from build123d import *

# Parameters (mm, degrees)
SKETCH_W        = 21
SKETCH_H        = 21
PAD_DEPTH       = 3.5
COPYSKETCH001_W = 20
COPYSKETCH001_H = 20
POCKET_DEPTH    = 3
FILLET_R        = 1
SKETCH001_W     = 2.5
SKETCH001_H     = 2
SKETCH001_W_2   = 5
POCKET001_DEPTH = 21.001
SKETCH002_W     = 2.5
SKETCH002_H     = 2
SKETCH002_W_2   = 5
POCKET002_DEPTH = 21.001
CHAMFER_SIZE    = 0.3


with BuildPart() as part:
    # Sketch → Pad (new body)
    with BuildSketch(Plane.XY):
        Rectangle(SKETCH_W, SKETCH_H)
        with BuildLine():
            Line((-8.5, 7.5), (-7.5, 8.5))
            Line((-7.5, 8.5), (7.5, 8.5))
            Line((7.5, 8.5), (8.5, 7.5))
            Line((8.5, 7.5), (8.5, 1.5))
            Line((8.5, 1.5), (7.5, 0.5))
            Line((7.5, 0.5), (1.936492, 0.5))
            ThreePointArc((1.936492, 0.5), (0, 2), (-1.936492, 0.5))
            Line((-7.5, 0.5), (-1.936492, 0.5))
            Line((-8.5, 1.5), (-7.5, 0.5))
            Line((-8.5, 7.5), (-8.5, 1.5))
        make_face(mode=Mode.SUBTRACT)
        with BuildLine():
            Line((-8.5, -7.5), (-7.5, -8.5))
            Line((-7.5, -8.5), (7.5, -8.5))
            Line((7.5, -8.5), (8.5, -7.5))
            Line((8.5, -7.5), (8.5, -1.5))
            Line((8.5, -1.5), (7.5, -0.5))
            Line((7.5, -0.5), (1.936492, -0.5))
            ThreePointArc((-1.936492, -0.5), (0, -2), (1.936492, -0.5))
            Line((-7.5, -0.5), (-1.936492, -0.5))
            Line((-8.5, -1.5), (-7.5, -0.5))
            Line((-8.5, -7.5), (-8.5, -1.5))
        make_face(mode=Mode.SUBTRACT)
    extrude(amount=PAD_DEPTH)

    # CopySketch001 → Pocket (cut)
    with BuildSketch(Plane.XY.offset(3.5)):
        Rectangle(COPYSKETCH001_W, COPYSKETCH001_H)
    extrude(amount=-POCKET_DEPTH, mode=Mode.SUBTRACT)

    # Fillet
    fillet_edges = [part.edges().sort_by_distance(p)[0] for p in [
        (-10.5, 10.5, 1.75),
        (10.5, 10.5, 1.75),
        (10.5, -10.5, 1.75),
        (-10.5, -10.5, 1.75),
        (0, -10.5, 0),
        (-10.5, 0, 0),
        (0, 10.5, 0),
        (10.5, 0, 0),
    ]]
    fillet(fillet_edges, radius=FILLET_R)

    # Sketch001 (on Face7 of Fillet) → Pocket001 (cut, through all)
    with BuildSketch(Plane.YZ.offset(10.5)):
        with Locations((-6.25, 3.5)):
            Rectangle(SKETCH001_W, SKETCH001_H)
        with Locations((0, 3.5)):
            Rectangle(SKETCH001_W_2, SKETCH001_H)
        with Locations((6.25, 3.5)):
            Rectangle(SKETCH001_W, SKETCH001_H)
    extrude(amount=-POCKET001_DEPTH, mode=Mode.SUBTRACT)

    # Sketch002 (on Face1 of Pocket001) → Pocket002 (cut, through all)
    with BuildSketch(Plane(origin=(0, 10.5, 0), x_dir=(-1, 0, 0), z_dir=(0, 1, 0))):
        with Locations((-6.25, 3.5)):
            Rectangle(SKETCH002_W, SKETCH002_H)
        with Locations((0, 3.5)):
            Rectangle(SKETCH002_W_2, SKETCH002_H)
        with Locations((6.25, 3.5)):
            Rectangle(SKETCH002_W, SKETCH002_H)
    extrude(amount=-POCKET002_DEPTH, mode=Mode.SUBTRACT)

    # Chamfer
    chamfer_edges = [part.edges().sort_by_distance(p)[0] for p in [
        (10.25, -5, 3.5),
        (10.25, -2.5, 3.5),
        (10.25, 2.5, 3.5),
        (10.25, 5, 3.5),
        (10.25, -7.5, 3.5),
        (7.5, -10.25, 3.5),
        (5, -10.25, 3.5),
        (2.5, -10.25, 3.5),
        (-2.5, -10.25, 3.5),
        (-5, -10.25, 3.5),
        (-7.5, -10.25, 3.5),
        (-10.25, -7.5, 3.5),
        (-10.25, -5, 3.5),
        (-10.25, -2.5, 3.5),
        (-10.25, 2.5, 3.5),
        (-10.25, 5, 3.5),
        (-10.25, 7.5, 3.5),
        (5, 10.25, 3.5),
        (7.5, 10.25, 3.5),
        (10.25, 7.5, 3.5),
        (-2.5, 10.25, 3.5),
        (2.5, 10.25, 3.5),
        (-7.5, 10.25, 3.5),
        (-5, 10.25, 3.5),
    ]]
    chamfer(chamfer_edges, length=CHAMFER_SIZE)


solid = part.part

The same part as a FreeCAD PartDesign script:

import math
import FreeCAD as App
import Part
import Sketcher


def edges_at(feature, points):
    """Names of the edges that pass closest to the given points."""
    edges = feature.Shape.Edges
    near = lambda p: min(range(len(edges)), key=lambda i: edges[i].distToShape(Part.Vertex(*p))[0])
    return sorted({f"Edge{near(p) + 1}" for p in points})

doc = App.newDocument("Part")
params = doc.addObject("Spreadsheet::Sheet", "Params")
for row, (alias, value) in enumerate([
    ("sketch1_radius", "2 mm"),
    ("sketch1_width", "21 mm"),
    ("sketch1_width2", "15 mm"),
    ("sketch1_height", "6 mm"),
    ("pad1_length", "3.5 mm"),
    ("sketch2_width", "20 mm"),
    ("pocket1_length", "3 mm"),
    ("fillet_radius", "1 mm"),
    ("sketch3_width", "5 mm"),
    ("sketch3_height", "2 mm"),
    ("sketch3_width2", "2.5 mm"),
    ("sketch4_width", "5 mm"),
    ("sketch4_height", "2 mm"),
    ("sketch4_width2", "2.5 mm"),
    ("chamfer_size", "0.3 mm"),
], start=1):
    params.set(f"A{row}", alias)
    params.set(f"B{row}", "=" + value)
    params.setAlias(f"B{row}", alias)

body = doc.addObject("PartDesign::Body", "Body")

sketch1 = doc.addObject("Sketcher::SketchObject", "Sketch")
body.addObject(sketch1)
sketch1.AttachmentSupport = (doc.XY_Plane, [""])
sketch1.MapMode = "FlatFace"
sketch1.addGeometry([
    Part.LineSegment(App.Vector(-10.5, 10.5, 0), App.Vector(-10.5, -10.5, 0)),
    Part.LineSegment(App.Vector(-10.5, -10.5, 0), App.Vector(10.5, -10.5, 0)),
    Part.LineSegment(App.Vector(10.5, -10.5, 0), App.Vector(10.5, 10.5, 0)),
    Part.LineSegment(App.Vector(10.5, 10.5, 0), App.Vector(-10.5, 10.5, 0)),
    Part.LineSegment(App.Vector(-7.5, -8.5, 0), App.Vector(-8.5, -7.5, 0)),
    Part.LineSegment(App.Vector(-8.5, -7.5, 0), App.Vector(-8.5, -1.5, 0)),
    Part.LineSegment(App.Vector(-8.5, -1.5, 0), App.Vector(-7.5, -0.5, 0)),
    Part.LineSegment(App.Vector(-7.5, -0.5, 0), App.Vector(-1.9, -0.5, 0)),
    Part.ArcOfCircle(Part.Circle(App.Vector(0, 0, 0), App.Vector(0, 0, 1), 2), math.radians(-166), math.radians(-14)),
    Part.LineSegment(App.Vector(1.9, -0.5, 0), App.Vector(7.5, -0.5, 0)),
    Part.LineSegment(App.Vector(7.5, -0.5, 0), App.Vector(8.5, -1.5, 0)),
    Part.LineSegment(App.Vector(8.5, -1.5, 0), App.Vector(8.5, -7.5, 0)),
    Part.LineSegment(App.Vector(8.5, -7.5, 0), App.Vector(7.5, -8.5, 0)),
    Part.LineSegment(App.Vector(7.5, -8.5, 0), App.Vector(-7.5, -8.5, 0)),
    Part.LineSegment(App.Vector(-8.5, 1.5, 0), App.Vector(-8.5, 7.5, 0)),
    Part.LineSegment(App.Vector(-8.5, 7.5, 0), App.Vector(-7.5, 8.5, 0)),
    Part.LineSegment(App.Vector(-7.5, 8.5, 0), App.Vector(7.5, 8.5, 0)),
    Part.LineSegment(App.Vector(7.5, 8.5, 0), App.Vector(8.5, 7.5, 0)),
    Part.LineSegment(App.Vector(8.5, 7.5, 0), App.Vector(8.5, 1.5, 0)),
    Part.LineSegment(App.Vector(8.5, 1.5, 0), App.Vector(7.5, 0.5, 0)),
    Part.LineSegment(App.Vector(7.5, 0.5, 0), App.Vector(1.9, 0.5, 0)),
    Part.ArcOfCircle(Part.Circle(App.Vector(0, 0, 0), App.Vector(0, 0, 1), 2), math.radians(14), math.radians(166)),
    Part.LineSegment(App.Vector(-1.9, 0.5, 0), App.Vector(-7.5, 0.5, 0)),
    Part.LineSegment(App.Vector(-7.5, 0.5, 0), App.Vector(-8.5, 1.5, 0)),
], False)
sketch1.addConstraint([
    Sketcher.Constraint("Coincident", 0, 2, 1, 1),
    Sketcher.Constraint("Coincident", 1, 2, 2, 1),
    Sketcher.Constraint("Coincident", 2, 2, 3, 1),
    Sketcher.Constraint("Coincident", 3, 2, 0, 1),
    Sketcher.Constraint("Coincident", 4, 2, 5, 1),
    Sketcher.Constraint("Coincident", 5, 2, 6, 1),
    Sketcher.Constraint("Coincident", 6, 2, 7, 1),
    Sketcher.Constraint("Coincident", 7, 2, 8, 1),
    Sketcher.Constraint("Coincident", 8, 2, 9, 1),
    Sketcher.Constraint("Coincident", 9, 2, 10, 1),
    Sketcher.Constraint("Coincident", 10, 2, 11, 1),
    Sketcher.Constraint("Coincident", 11, 2, 12, 1),
    Sketcher.Constraint("Coincident", 12, 2, 13, 1),
    Sketcher.Constraint("Coincident", 13, 2, 4, 1),
    Sketcher.Constraint("Coincident", 14, 2, 15, 1),
    Sketcher.Constraint("Coincident", 15, 2, 16, 1),
    Sketcher.Constraint("Coincident", 16, 2, 17, 1),
    Sketcher.Constraint("Coincident", 17, 2, 18, 1),
    Sketcher.Constraint("Coincident", 18, 2, 19, 1),
    Sketcher.Constraint("Coincident", 19, 2, 20, 1),
    Sketcher.Constraint("Coincident", 20, 2, 21, 1),
    Sketcher.Constraint("Coincident", 21, 2, 22, 1),
    Sketcher.Constraint("Coincident", 22, 2, 23, 1),
    Sketcher.Constraint("Coincident", 23, 2, 14, 1),
    Sketcher.Constraint("Vertical", 0),
    Sketcher.Constraint("Horizontal", 1),
    Sketcher.Constraint("Vertical", 2),
    Sketcher.Constraint("Horizontal", 3),
    Sketcher.Constraint("Vertical", 5),
    Sketcher.Constraint("Horizontal", 7),
    Sketcher.Constraint("Horizontal", 9),
    Sketcher.Constraint("Vertical", 11),
    Sketcher.Constraint("Horizontal", 13),
    Sketcher.Constraint("Vertical", 14),
    Sketcher.Constraint("Horizontal", 16),
    Sketcher.Constraint("Vertical", 18),
    Sketcher.Constraint("Horizontal", 20),
    Sketcher.Constraint("Horizontal", 22),
    Sketcher.Constraint("Coincident", 8, 3, -1, 1),
    Sketcher.Constraint("Coincident", 21, 3, -1, 1),
    Sketcher.Constraint("Equal", 8, 21),
    Sketcher.Constraint("Symmetric", 0, 2, 2, 2, -1, 1),
    Sketcher.Constraint("Symmetric", 11, 2, 14, 2, -1, 1),
    Sketcher.Constraint("Symmetric", 12, 2, 15, 2, -1, 1),
    Sketcher.Constraint("Symmetric", 4, 2, 17, 2, -1, 1),
    Sketcher.Constraint("Symmetric", 6, 2, 19, 2, -1, 1),
    Sketcher.Constraint("Symmetric", 9, 2, 22, 2, -1, 1),
    Sketcher.Constraint("Symmetric", 6, 2, 9, 2, -2),
    Sketcher.Constraint("Symmetric", 5, 2, 10, 2, -2),
    Sketcher.Constraint("Perpendicular", 4, 6),
    Sketcher.Constraint("Perpendicular", 6, 10),
    Sketcher.Constraint("Perpendicular", 10, 12),
    Sketcher.Constraint("Perpendicular", 15, 17),
    Sketcher.Constraint("Perpendicular", 17, 19),
    Sketcher.Constraint("Perpendicular", 19, 23),
    Sketcher.Constraint("Horizontal", 4, 2, 11, 2),
    Sketcher.Constraint("Vertical", 9, 2, 12, 2),
    Sketcher.Constraint("Equal", 3, 0),
    Sketcher.Constraint("Radius", 8, 2.0),
    Sketcher.Constraint("DistanceX", 1, 1, 1, 2, 21.0),
    Sketcher.Constraint("DistanceX", 13, 2, 13, 1, 15.0),
    Sketcher.Constraint("DistanceY", 5, 1, 5, 2, 6.0),
    Sketcher.Constraint("DistanceX", 0, 2, 4, 2, 2.0),
    Sketcher.Constraint("DistanceY", 0, 2, 4, 2, 3.0),
])
sketch1.setExpression("Constraints[58]", "Params.sketch1_radius")
sketch1.setExpression("Constraints[59]", "Params.sketch1_width")
sketch1.setExpression("Constraints[60]", "Params.sketch1_width2")
sketch1.setExpression("Constraints[61]", "Params.sketch1_height")
pad1 = doc.addObject("PartDesign::Pad", "Pad")
body.addObject(pad1)
pad1.Profile = sketch1
pad1.setExpression("Length", "Params.pad1_length")

sketch2 = doc.addObject("Sketcher::SketchObject", "Sketch001")
body.addObject(sketch2)
sketch2.AttachmentSupport = (doc.XY_Plane, [""])
sketch2.MapMode = "FlatFace"
sketch2.AttachmentOffset = App.Placement(App.Vector(0, 0, 3.5), App.Rotation())
sketch2.addGeometry([
    Part.LineSegment(App.Vector(-10, 10, 0), App.Vector(-10, -10, 0)),
    Part.LineSegment(App.Vector(-10, -10, 0), App.Vector(10, -10, 0)),
    Part.LineSegment(App.Vector(10, -10, 0), App.Vector(10, 10, 0)),
    Part.LineSegment(App.Vector(10, 10, 0), App.Vector(-10, 10, 0)),
], False)
sketch2.addConstraint([
    Sketcher.Constraint("Coincident", 0, 2, 1, 1),
    Sketcher.Constraint("Coincident", 1, 2, 2, 1),
    Sketcher.Constraint("Coincident", 2, 2, 3, 1),
    Sketcher.Constraint("Coincident", 3, 2, 0, 1),
    Sketcher.Constraint("Vertical", 0),
    Sketcher.Constraint("Horizontal", 1),
    Sketcher.Constraint("Vertical", 2),
    Sketcher.Constraint("Horizontal", 3),
    Sketcher.Constraint("Symmetric", 0, 2, 2, 2, -1, 1),
    Sketcher.Constraint("Equal", 3, 0),
    Sketcher.Constraint("DistanceX", 1, 1, 1, 2, 20.0),
])
sketch2.setExpression("Constraints[10]", "Params.sketch2_width")
pocket1 = doc.addObject("PartDesign::Pocket", "Pocket")
body.addObject(pocket1)
pocket1.Profile = sketch2
pocket1.setExpression("Length", "Params.pocket1_length")
doc.recompute()

fillet = doc.addObject("PartDesign::Fillet", "Fillet")
body.addObject(fillet)
fillet.Base = (pocket1, edges_at(pocket1, [
    (-10.5, 10.5, 1.75),
    (10.5, 10.5, 1.75),
    (10.5, -10.5, 1.75),
    (-10.5, -10.5, 1.75),
    (0, -10.5, 0),
    (-10.5, 0, 0),
    (0, 10.5, 0),
    (10.5, 0, 0),
]))
fillet.setExpression("Radius", "Params.fillet_radius")

sketch3 = doc.addObject("Sketcher::SketchObject", "Sketch002")
body.addObject(sketch3)
sketch3.AttachmentSupport = (doc.YZ_Plane, [""])
sketch3.MapMode = "FlatFace"
sketch3.AttachmentOffset = App.Placement(App.Vector(0, 0, 10.5), App.Rotation())
sketch3.addGeometry([
    Part.LineSegment(App.Vector(-7.5, 4.5, 0), App.Vector(-7.5, 2.5, 0)),
    Part.LineSegment(App.Vector(-7.5, 2.5, 0), App.Vector(-5, 2.5, 0)),
    Part.LineSegment(App.Vector(-5, 2.5, 0), App.Vector(-5, 4.5, 0)),
    Part.LineSegment(App.Vector(-5, 4.5, 0), App.Vector(-7.5, 4.5, 0)),
    Part.LineSegment(App.Vector(-2.5, 4.5, 0), App.Vector(-2.5, 2.5, 0)),
    Part.LineSegment(App.Vector(-2.5, 2.5, 0), App.Vector(2.5, 2.5, 0)),
    Part.LineSegment(App.Vector(2.5, 2.5, 0), App.Vector(2.5, 4.5, 0)),
    Part.LineSegment(App.Vector(2.5, 4.5, 0), App.Vector(-2.5, 4.5, 0)),
    Part.LineSegment(App.Vector(5, 4.5, 0), App.Vector(5, 2.5, 0)),
    Part.LineSegment(App.Vector(5, 2.5, 0), App.Vector(7.5, 2.5, 0)),
    Part.LineSegment(App.Vector(7.5, 2.5, 0), App.Vector(7.5, 4.5, 0)),
    Part.LineSegment(App.Vector(7.5, 4.5, 0), App.Vector(5, 4.5, 0)),
], False)
sketch3.addConstraint([
    Sketcher.Constraint("Coincident", 0, 2, 1, 1),
    Sketcher.Constraint("Coincident", 1, 2, 2, 1),
    Sketcher.Constraint("Coincident", 2, 2, 3, 1),
    Sketcher.Constraint("Coincident", 3, 2, 0, 1),
    Sketcher.Constraint("Coincident", 4, 2, 5, 1),
    Sketcher.Constraint("Coincident", 5, 2, 6, 1),
    Sketcher.Constraint("Coincident", 6, 2, 7, 1),
    Sketcher.Constraint("Coincident", 7, 2, 4, 1),
    Sketcher.Constraint("Coincident", 8, 2, 9, 1),
    Sketcher.Constraint("Coincident", 9, 2, 10, 1),
    Sketcher.Constraint("Coincident", 10, 2, 11, 1),
    Sketcher.Constraint("Coincident", 11, 2, 8, 1),
    Sketcher.Constraint("Vertical", 0),
    Sketcher.Constraint("Horizontal", 1),
    Sketcher.Constraint("Vertical", 2),
    Sketcher.Constraint("Horizontal", 3),
    Sketcher.Constraint("Vertical", 4),
    Sketcher.Constraint("Horizontal", 5),
    Sketcher.Constraint("Vertical", 6),
    Sketcher.Constraint("Horizontal", 7),
    Sketcher.Constraint("Vertical", 8),
    Sketcher.Constraint("Horizontal", 9),
    Sketcher.Constraint("Vertical", 10),
    Sketcher.Constraint("Horizontal", 11),
    Sketcher.Constraint("Symmetric", 1, 2, 8, 2, -2),
    Sketcher.Constraint("Symmetric", 3, 2, 10, 2, -2),
    Sketcher.Constraint("Horizontal", 1, 2, 4, 2),
    Sketcher.Constraint("Horizontal", 3, 2, 6, 2),
    Sketcher.Constraint("DistanceX", 5, 1, 5, 2, 5.0),
    Sketcher.Constraint("DistanceY", 0, 2, 0, 1, 2.0),
    Sketcher.Constraint("DistanceX", 1, 1, 1, 2, 2.5),
    Sketcher.Constraint("DistanceX", 1, 2, -1, 1, 5.0),
    Sketcher.Constraint("DistanceX", 0, 2, 4, 2, 5.0),
    Sketcher.Constraint("DistanceY", -1, 1, 0, 2, 2.5),
])
sketch3.setExpression("Constraints[28]", "Params.sketch3_width")
sketch3.setExpression("Constraints[29]", "Params.sketch3_height")
sketch3.setExpression("Constraints[30]", "Params.sketch3_width2")
pocket2 = doc.addObject("PartDesign::Pocket", "Pocket001")
body.addObject(pocket2)
pocket2.Profile = sketch3
pocket2.Type = "ThroughAll"

sketch4 = doc.addObject("Sketcher::SketchObject", "Sketch003")
body.addObject(sketch4)
sketch4.AttachmentSupport = (doc.XZ_Plane, [""])
sketch4.MapMode = "FlatFace"
sketch4.AttachmentOffset = App.Placement(App.Vector(0, 0, -10.5), App.Rotation())
sketch4.addGeometry([
    Part.LineSegment(App.Vector(7.5, 4.5, 0), App.Vector(7.5, 2.5, 0)),
    Part.LineSegment(App.Vector(7.5, 2.5, 0), App.Vector(5, 2.5, 0)),
    Part.LineSegment(App.Vector(5, 2.5, 0), App.Vector(5, 4.5, 0)),
    Part.LineSegment(App.Vector(5, 4.5, 0), App.Vector(7.5, 4.5, 0)),
    Part.LineSegment(App.Vector(2.5, 4.5, 0), App.Vector(2.5, 2.5, 0)),
    Part.LineSegment(App.Vector(2.5, 2.5, 0), App.Vector(-2.5, 2.5, 0)),
    Part.LineSegment(App.Vector(-2.5, 2.5, 0), App.Vector(-2.5, 4.5, 0)),
    Part.LineSegment(App.Vector(-2.5, 4.5, 0), App.Vector(2.5, 4.5, 0)),
    Part.LineSegment(App.Vector(-5, 4.5, 0), App.Vector(-5, 2.5, 0)),
    Part.LineSegment(App.Vector(-5, 2.5, 0), App.Vector(-7.5, 2.5, 0)),
    Part.LineSegment(App.Vector(-7.5, 2.5, 0), App.Vector(-7.5, 4.5, 0)),
    Part.LineSegment(App.Vector(-7.5, 4.5, 0), App.Vector(-5, 4.5, 0)),
], False)
sketch4.addConstraint([
    Sketcher.Constraint("Coincident", 0, 2, 1, 1),
    Sketcher.Constraint("Coincident", 1, 2, 2, 1),
    Sketcher.Constraint("Coincident", 2, 2, 3, 1),
    Sketcher.Constraint("Coincident", 3, 2, 0, 1),
    Sketcher.Constraint("Coincident", 4, 2, 5, 1),
    Sketcher.Constraint("Coincident", 5, 2, 6, 1),
    Sketcher.Constraint("Coincident", 6, 2, 7, 1),
    Sketcher.Constraint("Coincident", 7, 2, 4, 1),
    Sketcher.Constraint("Coincident", 8, 2, 9, 1),
    Sketcher.Constraint("Coincident", 9, 2, 10, 1),
    Sketcher.Constraint("Coincident", 10, 2, 11, 1),
    Sketcher.Constraint("Coincident", 11, 2, 8, 1),
    Sketcher.Constraint("Vertical", 0),
    Sketcher.Constraint("Horizontal", 1),
    Sketcher.Constraint("Vertical", 2),
    Sketcher.Constraint("Horizontal", 3),
    Sketcher.Constraint("Vertical", 4),
    Sketcher.Constraint("Horizontal", 5),
    Sketcher.Constraint("Vertical", 6),
    Sketcher.Constraint("Horizontal", 7),
    Sketcher.Constraint("Vertical", 8),
    Sketcher.Constraint("Horizontal", 9),
    Sketcher.Constraint("Vertical", 10),
    Sketcher.Constraint("Horizontal", 11),
    Sketcher.Constraint("Symmetric", 1, 2, 8, 2, -2),
    Sketcher.Constraint("Symmetric", 3, 2, 10, 2, -2),
    Sketcher.Constraint("Horizontal", 1, 2, 4, 2),
    Sketcher.Constraint("Horizontal", 3, 2, 6, 2),
    Sketcher.Constraint("DistanceX", 5, 2, 5, 1, 5.0),
    Sketcher.Constraint("DistanceY", 0, 2, 0, 1, 2.0),
    Sketcher.Constraint("DistanceX", 1, 2, 1, 1, 2.5),
    Sketcher.Constraint("DistanceX", -1, 1, 1, 2, 5.0),
    Sketcher.Constraint("DistanceX", 4, 2, 0, 2, 5.0),
    Sketcher.Constraint("DistanceY", -1, 1, 0, 2, 2.5),
])
sketch4.setExpression("Constraints[28]", "Params.sketch4_width")
sketch4.setExpression("Constraints[29]", "Params.sketch4_height")
sketch4.setExpression("Constraints[30]", "Params.sketch4_width2")
pocket3 = doc.addObject("PartDesign::Pocket", "Pocket002")
body.addObject(pocket3)
pocket3.Profile = sketch4
pocket3.Type = "ThroughAll"
pocket3.Reversed = True
doc.recompute()

chamfer = doc.addObject("PartDesign::Chamfer", "Chamfer")
body.addObject(chamfer)
chamfer.Base = (pocket3, edges_at(pocket3, [
    (10.25, -5, 3.5),
    (10.25, -2.5, 3.5),
    (10.25, 2.5, 3.5),
    (10.25, 5, 3.5),
    (10.25, -7.5, 3.5),
    (7.5, -10.25, 3.5),
    (5, -10.25, 3.5),
    (2.5, -10.25, 3.5),
    (-2.5, -10.25, 3.5),
    (-5, -10.25, 3.5),
    (-7.5, -10.25, 3.5),
    (-10.25, -7.5, 3.5),
    (-10.25, -5, 3.5),
    (-10.25, -2.5, 3.5),
    (-10.25, 2.5, 3.5),
    (-10.25, 5, 3.5),
    (-10.25, 7.5, 3.5),
    (5, 10.25, 3.5),
    (7.5, 10.25, 3.5),
    (10.25, 7.5, 3.5),
    (-2.5, 10.25, 3.5),
    (2.5, 10.25, 3.5),
    (-7.5, 10.25, 3.5),
    (-5, 10.25, 3.5),
]))
chamfer.setExpression("Size", "Params.chamfer_size")

doc.recompute()
